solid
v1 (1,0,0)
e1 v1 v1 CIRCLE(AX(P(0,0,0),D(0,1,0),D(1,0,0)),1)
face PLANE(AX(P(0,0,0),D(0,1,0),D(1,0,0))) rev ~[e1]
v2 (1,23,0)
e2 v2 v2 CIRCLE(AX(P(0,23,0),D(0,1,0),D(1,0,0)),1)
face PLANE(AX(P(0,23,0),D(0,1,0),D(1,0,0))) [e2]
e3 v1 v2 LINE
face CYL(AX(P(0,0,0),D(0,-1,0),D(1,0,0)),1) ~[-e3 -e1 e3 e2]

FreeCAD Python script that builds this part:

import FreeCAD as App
import Part
import Sketcher

V = App.Vector

doc = App.newDocument("Part")
params = doc.addObject("Spreadsheet::Sheet", "Params")
for row, (alias, value) in enumerate([
    ("sketch1_diameter", "2 mm"),
    ("pad1_length", "23 mm"),
], start=1):
    params.set(f"A{row}", alias)
    params.set(f"B{row}", "=" + value)
    params.setAlias(f"B{row}", alias)

body = doc.addObject("PartDesign::Body", "Body")

# Sketch on XZ plane
sketch1 = body.newObject("Sketcher::SketchObject", "Sketch")
sketch1.AttachmentSupport = (doc.getObject("XZ_Plane"), [""])
sketch1.MapMode = "FlatFace"
sketch1.addGeometry(Part.Circle(V(0, 0, 0), V(0, 0, 1), 1), False)
sketch1.addConstraint(Sketcher.Constraint("Coincident", 0, 3, -1, 1))
sketch1.addConstraint(Sketcher.Constraint("Diameter", 0, 2.0))
sketch1.setExpression("Constraints[1]", "Params.sketch1_diameter")
pad1 = body.newObject("PartDesign::Pad", "Pad")
pad1.Profile = sketch1
pad1.setExpression("Length", "Params.pad1_length")
pad1.Reversed = True

doc.recompute()
